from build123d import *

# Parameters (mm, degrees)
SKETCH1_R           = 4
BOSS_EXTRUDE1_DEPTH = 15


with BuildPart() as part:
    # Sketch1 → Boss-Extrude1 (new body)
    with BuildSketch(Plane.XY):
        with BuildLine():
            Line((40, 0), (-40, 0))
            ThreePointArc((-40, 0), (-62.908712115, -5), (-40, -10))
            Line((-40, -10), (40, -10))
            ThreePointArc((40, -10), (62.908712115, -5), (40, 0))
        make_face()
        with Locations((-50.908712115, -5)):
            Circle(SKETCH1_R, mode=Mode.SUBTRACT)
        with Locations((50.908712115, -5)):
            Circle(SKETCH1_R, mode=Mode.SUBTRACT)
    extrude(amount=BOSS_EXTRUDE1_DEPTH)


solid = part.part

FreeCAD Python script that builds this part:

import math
import FreeCAD as App
import Part
import Sketcher
from FreeCAD import Vector
Q = App.Units.Quantity

doc = App.newDocument("Part")
params = doc.addObject("Spreadsheet::Sheet", "Params")
for row, (alias, value) in enumerate([
    ("sketch1_diameter", "8 mm"),
    ("sketch1_radius", "12 mm"),
    ("sketch1_width", "80 mm"),
    ("pad1_length", "15 mm"),
], start=1):
    params.set(f"A{row}", alias)
    params.set(f"B{row}", "=" + value)
    params.setAlias(f"B{row}", alias)

body = doc.addObject("PartDesign::Body", "Body")

# Sketch on XY plane
sketch1 = body.newObject("Sketcher::SketchObject", "Sketch")
sketch1.AttachmentSupport = (doc.getObject("XY_Plane"), [""])
sketch1.MapMode = "FlatFace"
sketch1.addGeometry([
    Part.LineSegment(Vector(40, 0, 0), Vector(-40, 0, 0)),  # 0
    Part.ArcOfCircle(Part.Circle(Vector(-50.9, -5, 0), Vector(0, 0, 1), 12), math.radians(25), math.radians(335)),  # 1
    Part.LineSegment(Vector(-40, -10, 0), Vector(40, -10, 0)),  # 2
    Part.ArcOfCircle(Part.Circle(Vector(50.9, -5, 0), Vector(0, 0, 1), 12), math.radians(-155), math.radians(155)),  # 3
    Part.Circle(Vector(-50.9, -5, 0), Vector(0, 0, 1), 4),  # 4
    Part.Circle(Vector(50.9, -5, 0), Vector(0, 0, 1), 4),  # 5
], False)
sketch1.addConstraint([
    Sketcher.Constraint("Coincident", 0, 2, 1, 1),
    Sketcher.Constraint("Coincident", 1, 2, 2, 1),
    Sketcher.Constraint("Coincident", 2, 2, 3, 1),
    Sketcher.Constraint("Coincident", 3, 2, 0, 1),
    Sketcher.Constraint("Horizontal", 0),
    Sketcher.Constraint("Horizontal", 2),
    Sketcher.Constraint("Coincident", 4, 3, 1, 3),
    Sketcher.Constraint("Coincident", 5, 3, 3, 3),
    Sketcher.Constraint("Equal", 1, 3),
    Sketcher.Constraint("Equal", 4, 5),
    Sketcher.Constraint("Symmetric", 0, 2, 3, 2, -1, 1),
    Sketcher.Constraint("Horizontal", 1, 3, 3, 3),
    Sketcher.Constraint("Vertical", 0, 2, 1, 2),
    Sketcher.Constraint("Diameter", 4, Q("8 mm")),
    Sketcher.Constraint("Radius", 1, Q("12 mm")),
    Sketcher.Constraint("DistanceX", 0, 2, 0, 1, Q("80 mm")),
    Sketcher.Constraint("DistanceY", 1, 3, -1, 1, Q("5 mm")),
])
sketch1.setExpression("Constraints[13]", "Params.sketch1_diameter")
sketch1.setExpression("Constraints[14]", "Params.sketch1_radius")
sketch1.setExpression("Constraints[15]", "Params.sketch1_width")
pad1 = body.newObject("PartDesign::Pad", "Pad")
pad1.Profile = sketch1
pad1.setExpression("Length", "Params.pad1_length")

doc.recompute()
